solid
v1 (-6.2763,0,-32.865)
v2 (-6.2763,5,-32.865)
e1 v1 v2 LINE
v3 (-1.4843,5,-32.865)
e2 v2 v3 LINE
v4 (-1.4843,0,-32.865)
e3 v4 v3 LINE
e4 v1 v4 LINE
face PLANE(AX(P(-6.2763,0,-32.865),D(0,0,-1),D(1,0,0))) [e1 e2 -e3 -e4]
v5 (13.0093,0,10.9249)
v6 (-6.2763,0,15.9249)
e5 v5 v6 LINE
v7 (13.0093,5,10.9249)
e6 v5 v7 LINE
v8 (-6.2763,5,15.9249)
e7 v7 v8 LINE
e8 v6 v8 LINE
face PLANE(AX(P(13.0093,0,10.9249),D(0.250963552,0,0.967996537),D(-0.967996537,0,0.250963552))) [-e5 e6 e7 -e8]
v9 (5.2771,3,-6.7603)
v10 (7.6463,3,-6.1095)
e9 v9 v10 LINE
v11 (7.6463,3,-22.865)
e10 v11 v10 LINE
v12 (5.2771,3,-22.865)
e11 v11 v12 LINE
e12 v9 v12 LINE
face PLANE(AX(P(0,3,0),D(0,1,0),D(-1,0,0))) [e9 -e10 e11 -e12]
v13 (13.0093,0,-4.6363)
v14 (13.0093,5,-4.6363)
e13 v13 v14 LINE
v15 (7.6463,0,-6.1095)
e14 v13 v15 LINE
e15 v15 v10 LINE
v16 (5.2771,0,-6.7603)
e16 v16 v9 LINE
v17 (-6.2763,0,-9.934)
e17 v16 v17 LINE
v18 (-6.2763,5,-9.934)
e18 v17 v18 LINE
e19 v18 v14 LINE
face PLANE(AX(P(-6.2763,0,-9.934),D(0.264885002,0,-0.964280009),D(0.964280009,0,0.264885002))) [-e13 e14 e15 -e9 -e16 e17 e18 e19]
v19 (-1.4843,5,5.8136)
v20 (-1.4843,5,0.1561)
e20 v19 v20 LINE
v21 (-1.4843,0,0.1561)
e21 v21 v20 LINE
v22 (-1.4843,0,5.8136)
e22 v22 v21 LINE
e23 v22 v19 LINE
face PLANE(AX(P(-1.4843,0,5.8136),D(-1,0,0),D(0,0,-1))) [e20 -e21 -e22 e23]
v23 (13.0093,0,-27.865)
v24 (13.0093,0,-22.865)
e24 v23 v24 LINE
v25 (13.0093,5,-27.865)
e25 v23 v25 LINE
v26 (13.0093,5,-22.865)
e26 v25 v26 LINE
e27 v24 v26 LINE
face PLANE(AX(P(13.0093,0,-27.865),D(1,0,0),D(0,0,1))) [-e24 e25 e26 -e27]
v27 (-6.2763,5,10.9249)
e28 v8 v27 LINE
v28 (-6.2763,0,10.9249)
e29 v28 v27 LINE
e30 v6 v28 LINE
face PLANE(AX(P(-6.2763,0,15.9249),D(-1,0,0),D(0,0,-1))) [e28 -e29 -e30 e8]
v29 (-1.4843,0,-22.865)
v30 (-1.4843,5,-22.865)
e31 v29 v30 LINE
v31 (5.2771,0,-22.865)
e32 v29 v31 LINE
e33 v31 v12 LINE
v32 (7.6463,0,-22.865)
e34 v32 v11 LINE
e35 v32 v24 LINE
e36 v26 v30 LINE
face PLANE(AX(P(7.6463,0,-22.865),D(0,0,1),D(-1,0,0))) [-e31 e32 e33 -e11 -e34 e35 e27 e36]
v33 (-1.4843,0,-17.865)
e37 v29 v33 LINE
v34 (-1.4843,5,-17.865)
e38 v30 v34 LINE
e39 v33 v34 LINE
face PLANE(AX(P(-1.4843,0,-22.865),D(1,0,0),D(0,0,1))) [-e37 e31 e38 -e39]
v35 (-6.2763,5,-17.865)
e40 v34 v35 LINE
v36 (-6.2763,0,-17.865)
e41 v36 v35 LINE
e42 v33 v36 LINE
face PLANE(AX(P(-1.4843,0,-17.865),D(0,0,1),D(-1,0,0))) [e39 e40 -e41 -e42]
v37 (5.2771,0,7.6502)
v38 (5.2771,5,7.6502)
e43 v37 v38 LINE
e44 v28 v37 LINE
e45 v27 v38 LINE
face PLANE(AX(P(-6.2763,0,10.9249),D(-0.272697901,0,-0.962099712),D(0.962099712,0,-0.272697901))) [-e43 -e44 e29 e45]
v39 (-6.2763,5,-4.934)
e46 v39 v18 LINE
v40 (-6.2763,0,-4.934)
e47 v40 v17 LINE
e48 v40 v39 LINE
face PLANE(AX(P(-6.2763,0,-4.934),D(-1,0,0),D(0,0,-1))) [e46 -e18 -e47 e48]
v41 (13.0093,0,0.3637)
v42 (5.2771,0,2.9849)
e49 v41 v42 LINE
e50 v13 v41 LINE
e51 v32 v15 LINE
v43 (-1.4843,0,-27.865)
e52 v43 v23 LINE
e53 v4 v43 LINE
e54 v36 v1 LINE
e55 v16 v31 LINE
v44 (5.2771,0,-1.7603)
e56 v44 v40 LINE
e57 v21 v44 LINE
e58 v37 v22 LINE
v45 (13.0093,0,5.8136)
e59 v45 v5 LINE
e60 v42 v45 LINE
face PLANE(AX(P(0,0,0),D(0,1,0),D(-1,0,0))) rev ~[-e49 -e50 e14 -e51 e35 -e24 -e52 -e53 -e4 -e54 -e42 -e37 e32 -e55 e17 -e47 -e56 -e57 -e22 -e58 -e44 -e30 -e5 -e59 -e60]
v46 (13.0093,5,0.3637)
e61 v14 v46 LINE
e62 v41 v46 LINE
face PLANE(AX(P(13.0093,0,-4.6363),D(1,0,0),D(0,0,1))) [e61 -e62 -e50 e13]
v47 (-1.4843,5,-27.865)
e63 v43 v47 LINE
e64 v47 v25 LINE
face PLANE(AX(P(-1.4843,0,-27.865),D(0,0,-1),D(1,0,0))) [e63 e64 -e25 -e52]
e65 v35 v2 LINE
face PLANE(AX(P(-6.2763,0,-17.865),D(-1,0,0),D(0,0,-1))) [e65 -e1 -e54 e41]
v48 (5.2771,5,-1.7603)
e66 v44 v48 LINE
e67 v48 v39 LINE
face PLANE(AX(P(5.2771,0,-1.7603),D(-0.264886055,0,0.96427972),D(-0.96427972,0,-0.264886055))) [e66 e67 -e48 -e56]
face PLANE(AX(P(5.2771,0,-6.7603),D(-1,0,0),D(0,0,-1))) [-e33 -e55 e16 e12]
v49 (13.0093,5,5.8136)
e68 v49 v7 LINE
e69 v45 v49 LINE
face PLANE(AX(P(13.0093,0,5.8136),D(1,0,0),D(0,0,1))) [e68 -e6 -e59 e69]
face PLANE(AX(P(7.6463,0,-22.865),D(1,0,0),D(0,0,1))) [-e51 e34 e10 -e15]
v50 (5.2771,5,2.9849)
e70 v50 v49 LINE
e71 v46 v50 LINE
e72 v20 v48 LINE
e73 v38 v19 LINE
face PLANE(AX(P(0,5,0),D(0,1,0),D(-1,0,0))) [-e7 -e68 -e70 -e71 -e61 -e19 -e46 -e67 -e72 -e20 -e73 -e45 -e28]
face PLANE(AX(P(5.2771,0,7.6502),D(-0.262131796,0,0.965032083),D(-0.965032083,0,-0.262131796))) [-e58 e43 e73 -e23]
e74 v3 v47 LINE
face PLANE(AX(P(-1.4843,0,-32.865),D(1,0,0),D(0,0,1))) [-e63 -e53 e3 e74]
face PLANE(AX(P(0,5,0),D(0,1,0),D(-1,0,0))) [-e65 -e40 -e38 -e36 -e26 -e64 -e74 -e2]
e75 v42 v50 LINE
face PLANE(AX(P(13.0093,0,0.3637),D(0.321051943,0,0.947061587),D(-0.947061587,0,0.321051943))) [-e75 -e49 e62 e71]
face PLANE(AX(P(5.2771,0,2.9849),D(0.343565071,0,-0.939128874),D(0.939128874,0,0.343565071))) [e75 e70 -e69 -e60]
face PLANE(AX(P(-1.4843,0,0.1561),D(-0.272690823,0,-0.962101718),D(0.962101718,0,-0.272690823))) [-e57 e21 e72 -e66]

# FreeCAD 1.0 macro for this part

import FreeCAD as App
import Part
import Sketcher
Q = App.Units.Quantity

doc = App.newDocument("Part")
body = doc.addObject("PartDesign::Body", "Body")
body.AllowCompound = True

sketch1 = body.newObject("Sketcher::SketchObject", "Sketch")
sketch1.AttachmentSupport = (doc.getObject("XZ_Plane"), [""])
sketch1.MapMode = "FlatFace"
sketch1.addGeometry([
    Part.LineSegment(App.Vector(-6.3, 10.9, 0), App.Vector(-6.3, 15.9, 0)),
    Part.LineSegment(App.Vector(-6.3, 15.9, 0), App.Vector(13, 10.9, 0)),
    Part.LineSegment(App.Vector(13, 10.9, 0), App.Vector(13, 5.8, 0)),
    Part.LineSegment(App.Vector(13, 5.8, 0), App.Vector(5.3, 3, 0)),
    Part.LineSegment(App.Vector(5.3, 3, 0), App.Vector(13, 0.4, 0)),
    Part.LineSegment(App.Vector(13, 0.4, 0), App.Vector(13, -4.6, 0)),
    Part.LineSegment(App.Vector(13, -4.6, 0), App.Vector(-6.3, -9.9, 0)),
    Part.LineSegment(App.Vector(-6.3, -9.9, 0), App.Vector(-6.3, -4.9, 0)),
    Part.LineSegment(App.Vector(-6.3, -4.9, 0), App.Vector(5.3, -1.8, 0)),
    Part.LineSegment(App.Vector(5.3, -1.8, 0), App.Vector(-1.5, 0.2, 0)),
    Part.LineSegment(App.Vector(-1.5, 0.2, 0), App.Vector(-1.5, 5.8, 0)),
    Part.LineSegment(App.Vector(-1.5, 5.8, 0), App.Vector(5.3, 7.7, 0)),
    Part.LineSegment(App.Vector(5.3, 7.7, 0), App.Vector(-6.3, 10.9, 0)),
    Part.LineSegment(App.Vector(-1.5, -22.9, 0), App.Vector(13, -22.9, 0)),
    Part.LineSegment(App.Vector(13, -22.9, 0), App.Vector(13, -27.9, 0)),
    Part.LineSegment(App.Vector(13, -27.9, 0), App.Vector(-1.5, -27.9, 0)),
    Part.LineSegment(App.Vector(-1.5, -27.9, 0), App.Vector(-1.5, -32.9, 0)),
    Part.LineSegment(App.Vector(-1.5, -32.9, 0), App.Vector(-6.3, -32.9, 0)),
    Part.LineSegment(App.Vector(-6.3, -32.9, 0), App.Vector(-6.3, -17.9, 0)),
    Part.LineSegment(App.Vector(-6.3, -17.9, 0), App.Vector(-1.5, -17.9, 0)),
    Part.LineSegment(App.Vector(-1.5, -17.9, 0), App.Vector(-1.5, -22.9, 0)),
], False)
sketch1.addConstraint([
    Sketcher.Constraint("Coincident", 0, 2, 1, 1),
    Sketcher.Constraint("Coincident", 1, 2, 2, 1),
    Sketcher.Constraint("Coincident", 2, 2, 3, 1),
    Sketcher.Constraint("Coincident", 3, 2, 4, 1),
    Sketcher.Constraint("Coincident", 4, 2, 5, 1),
    Sketcher.Constraint("Coincident", 5, 2, 6, 1),
    Sketcher.Constraint("Coincident", 6, 2, 7, 1),
    Sketcher.Constraint("Coincident", 7, 2, 8, 1),
    Sketcher.Constraint("Coincident", 8, 2, 9, 1),
    Sketcher.Constraint("Coincident", 9, 2, 10, 1),
    Sketcher.Constraint("Coincident", 10, 2, 11, 1),
    Sketcher.Constraint("Coincident", 11, 2, 12, 1),
    Sketcher.Constraint("Coincident", 12, 2, 0, 1),
    Sketcher.Constraint("Coincident", 13, 2, 14, 1),
    Sketcher.Constraint("Coincident", 14, 2, 15, 1),
    Sketcher.Constraint("Coincident", 15, 2, 16, 1),
    Sketcher.Constraint("Coincident", 16, 2, 17, 1),
    Sketcher.Constraint("Coincident", 17, 2, 18, 1),
    Sketcher.Constraint("Coincident", 18, 2, 19, 1),
    Sketcher.Constraint("Coincident", 19, 2, 20, 1),
    Sketcher.Constraint("Coincident", 20, 2, 13, 1),
    Sketcher.Constraint("Vertical", 0),
    Sketcher.Constraint("Vertical", 2),
    Sketcher.Constraint("Vertical", 5),
    Sketcher.Constraint("Vertical", 7),
    Sketcher.Constraint("Vertical", 10),
    Sketcher.Constraint("Horizontal", 13),
    Sketcher.Constraint("Vertical", 14),
    Sketcher.Constraint("Horizontal", 15),
    Sketcher.Constraint("Vertical", 16),
    Sketcher.Constraint("Horizontal", 17),
    Sketcher.Constraint("Vertical", 18),
    Sketcher.Constraint("Horizontal", 19),
    Sketcher.Constraint("Vertical", 20),
    Sketcher.Constraint("Parallel", 6, 8),
    Sketcher.Constraint("Parallel", 9, 12),
    Sketcher.Constraint("Horizontal", 2, 2, 10, 2),
    Sketcher.Constraint("Horizontal", 1, 2, 12, 2),
    Sketcher.Constraint("Vertical", 2, 2, 4, 2),
    Sketcher.Constraint("Vertical", 0, 2, 6, 2),
    Sketcher.Constraint("Vertical", 3, 2, 8, 2),
    Sketcher.Constraint("Vertical", 8, 2, 11, 2),
    Sketcher.Constraint("Vertical", 5, 2, 13, 2),
    Sketcher.Constraint("Vertical", 10, 2, 15, 2),
    Sketcher.Constraint("Vertical", 12, 2, 17, 2),
    Sketcher.Constraint("Vertical", 16, 2, 19, 2),
    Sketcher.Constraint("Equal", 0, 5),
    Sketcher.Constraint("Equal", 5, 7),
    Sketcher.Constraint("Equal", 7, 14),
    Sketcher.Constraint("Equal", 14, 16),
    Sketcher.Constraint("Equal", 16, 20),
    Sketcher.Constraint("DistanceY", 0, 1, 0, 2, 5.0),
    Sketcher.Constraint("Distance", 6, 20.0),
    Sketcher.Constraint("Angle", 6, Q("-164.64 deg")),
    Sketcher.Constraint("DistanceX", 17, 2, 17, 1, 4.792),
    Sketcher.Constraint("DistanceY", 3, 2, 1, 2, 7.94),
    Sketcher.Constraint("DistanceY", 4, 2, 2, 2, 5.45),
    Sketcher.Constraint("DistanceY", 7, 2, 9, 2, 5.09),
    Sketcher.Constraint("DistanceY", 2, 2, 2, 1, 5.1113),
    Sketcher.Constraint("DistanceY", -1, 1, 0, 2, 15.925),
    Sketcher.Constraint("DistanceX", -1, 1, 3, 2, 5.277),
    Sketcher.Constraint("DistanceY", 13, 2, -1, 1, 22.865),
    Sketcher.Constraint("DistanceY", 8, 2, 4, 2, 2.124),
])
pad1 = body.newObject("PartDesign::Pad", "Pad")
pad1.Profile = sketch1
pad1.Length = 5
pad1.Reversed = True

sketch2 = body.newObject("Sketcher::SketchObject", "Sketch001")
sketch2.AttachmentSupport = (doc.getObject("XZ_Plane"), [""])
sketch2.MapMode = "FlatFace"
sketch2.addGeometry([
    Part.LineSegment(App.Vector(5.3, -6.8, 0), App.Vector(7.6, -6.1, 0)),
    Part.LineSegment(App.Vector(7.6, -6.1, 0), App.Vector(7.6, -22.9, 0)),
    Part.LineSegment(App.Vector(7.6, -22.9, 0), App.Vector(5.3, -22.9, 0)),
    Part.LineSegment(App.Vector(5.3, -22.9, 0), App.Vector(5.3, -6.8, 0)),
], False)
sketch2.addConstraint([
    Sketcher.Constraint("Coincident", 0, 2, 1, 1),
    Sketcher.Constraint("Coincident", 1, 2, 2, 1),
    Sketcher.Constraint("Coincident", 2, 2, 3, 1),
    Sketcher.Constraint("Coincident", 3, 2, 0, 1),
    Sketcher.Constraint("Vertical", 1),
    Sketcher.Constraint("Horizontal", 2),
    Sketcher.Constraint("Vertical", 3),
    Sketcher.Constraint("Angle", 0, Q("15.36 deg")),
    Sketcher.Constraint("Distance", 0, 2.457),
    Sketcher.Constraint("DistanceY", 1, 2, 1, 1, 16.7555),
    Sketcher.Constraint("DistanceY", 1, 2, -1, 1, 22.865),
    Sketcher.Constraint("DistanceX", -1, 1, 2, 2, 5.277),
])
pad2 = body.newObject("PartDesign::Pad", "Pad001")
pad2.Profile = sketch2
pad2.Length = 3
pad2.Reversed = True

doc.recompute()
